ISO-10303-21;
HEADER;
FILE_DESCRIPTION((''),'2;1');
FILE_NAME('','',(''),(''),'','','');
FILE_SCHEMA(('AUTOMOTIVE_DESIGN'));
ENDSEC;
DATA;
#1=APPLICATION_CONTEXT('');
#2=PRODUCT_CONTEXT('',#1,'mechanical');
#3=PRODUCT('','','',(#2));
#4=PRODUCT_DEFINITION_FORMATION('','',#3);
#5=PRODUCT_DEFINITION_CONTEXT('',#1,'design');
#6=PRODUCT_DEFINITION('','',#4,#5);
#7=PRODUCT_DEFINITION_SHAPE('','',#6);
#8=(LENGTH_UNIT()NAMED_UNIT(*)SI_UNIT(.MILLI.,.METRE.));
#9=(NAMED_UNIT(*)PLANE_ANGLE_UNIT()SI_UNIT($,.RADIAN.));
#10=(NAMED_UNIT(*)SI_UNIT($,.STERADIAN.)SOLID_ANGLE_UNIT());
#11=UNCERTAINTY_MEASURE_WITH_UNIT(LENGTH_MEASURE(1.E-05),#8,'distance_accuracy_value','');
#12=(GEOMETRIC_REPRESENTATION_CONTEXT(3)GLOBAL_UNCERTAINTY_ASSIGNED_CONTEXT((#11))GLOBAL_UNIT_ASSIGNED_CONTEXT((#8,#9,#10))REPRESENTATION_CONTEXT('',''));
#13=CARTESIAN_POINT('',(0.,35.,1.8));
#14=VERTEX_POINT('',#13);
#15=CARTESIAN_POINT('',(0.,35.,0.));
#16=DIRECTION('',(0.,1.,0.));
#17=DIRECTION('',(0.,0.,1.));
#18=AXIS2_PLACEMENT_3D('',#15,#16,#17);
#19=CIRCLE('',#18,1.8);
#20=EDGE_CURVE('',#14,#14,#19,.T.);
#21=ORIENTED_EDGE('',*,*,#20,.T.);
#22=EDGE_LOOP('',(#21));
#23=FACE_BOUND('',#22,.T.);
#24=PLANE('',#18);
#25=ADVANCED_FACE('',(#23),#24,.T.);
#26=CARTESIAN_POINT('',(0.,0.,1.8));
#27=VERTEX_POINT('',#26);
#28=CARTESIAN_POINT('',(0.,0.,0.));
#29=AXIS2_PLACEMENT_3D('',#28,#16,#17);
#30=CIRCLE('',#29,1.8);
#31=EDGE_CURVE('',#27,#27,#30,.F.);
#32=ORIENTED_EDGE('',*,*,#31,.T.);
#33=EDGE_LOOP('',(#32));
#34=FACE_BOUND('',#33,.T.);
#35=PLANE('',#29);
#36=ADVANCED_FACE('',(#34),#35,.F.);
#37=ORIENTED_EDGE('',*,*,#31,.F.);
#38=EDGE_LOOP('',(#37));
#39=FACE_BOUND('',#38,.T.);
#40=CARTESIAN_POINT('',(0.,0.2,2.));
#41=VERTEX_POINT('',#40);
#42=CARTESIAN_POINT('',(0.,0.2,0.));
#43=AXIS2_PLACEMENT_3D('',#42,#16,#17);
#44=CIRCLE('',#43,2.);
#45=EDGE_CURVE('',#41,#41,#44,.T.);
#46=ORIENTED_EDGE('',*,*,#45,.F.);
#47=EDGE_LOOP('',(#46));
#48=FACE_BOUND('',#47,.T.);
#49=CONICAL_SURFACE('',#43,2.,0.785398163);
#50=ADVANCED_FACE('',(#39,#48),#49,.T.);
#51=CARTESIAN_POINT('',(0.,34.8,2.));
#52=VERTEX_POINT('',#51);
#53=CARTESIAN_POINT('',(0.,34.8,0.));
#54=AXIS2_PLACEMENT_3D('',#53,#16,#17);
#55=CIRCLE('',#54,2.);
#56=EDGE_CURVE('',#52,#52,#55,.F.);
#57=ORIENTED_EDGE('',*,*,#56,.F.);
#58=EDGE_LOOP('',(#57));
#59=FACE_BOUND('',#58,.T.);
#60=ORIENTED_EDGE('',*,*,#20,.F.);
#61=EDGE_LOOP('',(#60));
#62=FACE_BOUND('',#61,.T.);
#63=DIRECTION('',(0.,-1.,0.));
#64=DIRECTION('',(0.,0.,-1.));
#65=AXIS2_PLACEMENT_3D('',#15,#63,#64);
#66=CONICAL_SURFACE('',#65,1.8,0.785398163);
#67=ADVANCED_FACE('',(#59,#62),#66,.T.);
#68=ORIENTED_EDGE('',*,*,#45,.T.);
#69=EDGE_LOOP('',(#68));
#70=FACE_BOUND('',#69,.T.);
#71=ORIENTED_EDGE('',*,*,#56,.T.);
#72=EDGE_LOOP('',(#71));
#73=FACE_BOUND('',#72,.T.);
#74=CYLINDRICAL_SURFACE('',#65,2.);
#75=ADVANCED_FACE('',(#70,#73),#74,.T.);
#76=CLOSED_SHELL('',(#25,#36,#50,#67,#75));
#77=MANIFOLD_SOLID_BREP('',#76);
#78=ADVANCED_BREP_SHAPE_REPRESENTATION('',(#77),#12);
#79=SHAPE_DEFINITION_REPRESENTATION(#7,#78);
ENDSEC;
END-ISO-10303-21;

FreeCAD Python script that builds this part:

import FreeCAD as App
import Part
import Sketcher

V = App.Vector


def edges_at(feature, points):
    """Names of the edges that pass closest to the given points."""
    edges = feature.Shape.Edges
    near = lambda p: min(range(len(edges)), key=lambda i: edges[i].distToShape(Part.Vertex(*p))[0])
    return sorted({f"Edge{near(p) + 1}" for p in points})

doc = App.newDocument("Part")
body = doc.addObject("PartDesign::Body", "Body")

# Sketch on XZ plane
sketch1 = body.newObject("Sketcher::SketchObject", "Sketch")
sketch1.AttachmentSupport = (doc.getObject("XZ_Plane"), [""])
sketch1.MapMode = "FlatFace"
sketch1.addGeometry(Part.Circle(V(0, 0, 0), V(0, 0, 1), 2), False)
sketch1.addConstraint([
    Sketcher.Constraint("Coincident", 0, 3, -1, 1),
    Sketcher.Constraint("Diameter", 0, 4.0),
])
pad1 = body.newObject("PartDesign::Pad", "Pad")
pad1.Profile = sketch1
pad1.Length = 35
pad1.Reversed = True
doc.recompute()

chamfer = body.newObject("PartDesign::Chamfer", "Chamfer")
chamfer.Base = (pad1, edges_at(pad1, [(-2, 0, 0), (-2, 35, 0)]))
chamfer.Size = 0.2

doc.recompute()
